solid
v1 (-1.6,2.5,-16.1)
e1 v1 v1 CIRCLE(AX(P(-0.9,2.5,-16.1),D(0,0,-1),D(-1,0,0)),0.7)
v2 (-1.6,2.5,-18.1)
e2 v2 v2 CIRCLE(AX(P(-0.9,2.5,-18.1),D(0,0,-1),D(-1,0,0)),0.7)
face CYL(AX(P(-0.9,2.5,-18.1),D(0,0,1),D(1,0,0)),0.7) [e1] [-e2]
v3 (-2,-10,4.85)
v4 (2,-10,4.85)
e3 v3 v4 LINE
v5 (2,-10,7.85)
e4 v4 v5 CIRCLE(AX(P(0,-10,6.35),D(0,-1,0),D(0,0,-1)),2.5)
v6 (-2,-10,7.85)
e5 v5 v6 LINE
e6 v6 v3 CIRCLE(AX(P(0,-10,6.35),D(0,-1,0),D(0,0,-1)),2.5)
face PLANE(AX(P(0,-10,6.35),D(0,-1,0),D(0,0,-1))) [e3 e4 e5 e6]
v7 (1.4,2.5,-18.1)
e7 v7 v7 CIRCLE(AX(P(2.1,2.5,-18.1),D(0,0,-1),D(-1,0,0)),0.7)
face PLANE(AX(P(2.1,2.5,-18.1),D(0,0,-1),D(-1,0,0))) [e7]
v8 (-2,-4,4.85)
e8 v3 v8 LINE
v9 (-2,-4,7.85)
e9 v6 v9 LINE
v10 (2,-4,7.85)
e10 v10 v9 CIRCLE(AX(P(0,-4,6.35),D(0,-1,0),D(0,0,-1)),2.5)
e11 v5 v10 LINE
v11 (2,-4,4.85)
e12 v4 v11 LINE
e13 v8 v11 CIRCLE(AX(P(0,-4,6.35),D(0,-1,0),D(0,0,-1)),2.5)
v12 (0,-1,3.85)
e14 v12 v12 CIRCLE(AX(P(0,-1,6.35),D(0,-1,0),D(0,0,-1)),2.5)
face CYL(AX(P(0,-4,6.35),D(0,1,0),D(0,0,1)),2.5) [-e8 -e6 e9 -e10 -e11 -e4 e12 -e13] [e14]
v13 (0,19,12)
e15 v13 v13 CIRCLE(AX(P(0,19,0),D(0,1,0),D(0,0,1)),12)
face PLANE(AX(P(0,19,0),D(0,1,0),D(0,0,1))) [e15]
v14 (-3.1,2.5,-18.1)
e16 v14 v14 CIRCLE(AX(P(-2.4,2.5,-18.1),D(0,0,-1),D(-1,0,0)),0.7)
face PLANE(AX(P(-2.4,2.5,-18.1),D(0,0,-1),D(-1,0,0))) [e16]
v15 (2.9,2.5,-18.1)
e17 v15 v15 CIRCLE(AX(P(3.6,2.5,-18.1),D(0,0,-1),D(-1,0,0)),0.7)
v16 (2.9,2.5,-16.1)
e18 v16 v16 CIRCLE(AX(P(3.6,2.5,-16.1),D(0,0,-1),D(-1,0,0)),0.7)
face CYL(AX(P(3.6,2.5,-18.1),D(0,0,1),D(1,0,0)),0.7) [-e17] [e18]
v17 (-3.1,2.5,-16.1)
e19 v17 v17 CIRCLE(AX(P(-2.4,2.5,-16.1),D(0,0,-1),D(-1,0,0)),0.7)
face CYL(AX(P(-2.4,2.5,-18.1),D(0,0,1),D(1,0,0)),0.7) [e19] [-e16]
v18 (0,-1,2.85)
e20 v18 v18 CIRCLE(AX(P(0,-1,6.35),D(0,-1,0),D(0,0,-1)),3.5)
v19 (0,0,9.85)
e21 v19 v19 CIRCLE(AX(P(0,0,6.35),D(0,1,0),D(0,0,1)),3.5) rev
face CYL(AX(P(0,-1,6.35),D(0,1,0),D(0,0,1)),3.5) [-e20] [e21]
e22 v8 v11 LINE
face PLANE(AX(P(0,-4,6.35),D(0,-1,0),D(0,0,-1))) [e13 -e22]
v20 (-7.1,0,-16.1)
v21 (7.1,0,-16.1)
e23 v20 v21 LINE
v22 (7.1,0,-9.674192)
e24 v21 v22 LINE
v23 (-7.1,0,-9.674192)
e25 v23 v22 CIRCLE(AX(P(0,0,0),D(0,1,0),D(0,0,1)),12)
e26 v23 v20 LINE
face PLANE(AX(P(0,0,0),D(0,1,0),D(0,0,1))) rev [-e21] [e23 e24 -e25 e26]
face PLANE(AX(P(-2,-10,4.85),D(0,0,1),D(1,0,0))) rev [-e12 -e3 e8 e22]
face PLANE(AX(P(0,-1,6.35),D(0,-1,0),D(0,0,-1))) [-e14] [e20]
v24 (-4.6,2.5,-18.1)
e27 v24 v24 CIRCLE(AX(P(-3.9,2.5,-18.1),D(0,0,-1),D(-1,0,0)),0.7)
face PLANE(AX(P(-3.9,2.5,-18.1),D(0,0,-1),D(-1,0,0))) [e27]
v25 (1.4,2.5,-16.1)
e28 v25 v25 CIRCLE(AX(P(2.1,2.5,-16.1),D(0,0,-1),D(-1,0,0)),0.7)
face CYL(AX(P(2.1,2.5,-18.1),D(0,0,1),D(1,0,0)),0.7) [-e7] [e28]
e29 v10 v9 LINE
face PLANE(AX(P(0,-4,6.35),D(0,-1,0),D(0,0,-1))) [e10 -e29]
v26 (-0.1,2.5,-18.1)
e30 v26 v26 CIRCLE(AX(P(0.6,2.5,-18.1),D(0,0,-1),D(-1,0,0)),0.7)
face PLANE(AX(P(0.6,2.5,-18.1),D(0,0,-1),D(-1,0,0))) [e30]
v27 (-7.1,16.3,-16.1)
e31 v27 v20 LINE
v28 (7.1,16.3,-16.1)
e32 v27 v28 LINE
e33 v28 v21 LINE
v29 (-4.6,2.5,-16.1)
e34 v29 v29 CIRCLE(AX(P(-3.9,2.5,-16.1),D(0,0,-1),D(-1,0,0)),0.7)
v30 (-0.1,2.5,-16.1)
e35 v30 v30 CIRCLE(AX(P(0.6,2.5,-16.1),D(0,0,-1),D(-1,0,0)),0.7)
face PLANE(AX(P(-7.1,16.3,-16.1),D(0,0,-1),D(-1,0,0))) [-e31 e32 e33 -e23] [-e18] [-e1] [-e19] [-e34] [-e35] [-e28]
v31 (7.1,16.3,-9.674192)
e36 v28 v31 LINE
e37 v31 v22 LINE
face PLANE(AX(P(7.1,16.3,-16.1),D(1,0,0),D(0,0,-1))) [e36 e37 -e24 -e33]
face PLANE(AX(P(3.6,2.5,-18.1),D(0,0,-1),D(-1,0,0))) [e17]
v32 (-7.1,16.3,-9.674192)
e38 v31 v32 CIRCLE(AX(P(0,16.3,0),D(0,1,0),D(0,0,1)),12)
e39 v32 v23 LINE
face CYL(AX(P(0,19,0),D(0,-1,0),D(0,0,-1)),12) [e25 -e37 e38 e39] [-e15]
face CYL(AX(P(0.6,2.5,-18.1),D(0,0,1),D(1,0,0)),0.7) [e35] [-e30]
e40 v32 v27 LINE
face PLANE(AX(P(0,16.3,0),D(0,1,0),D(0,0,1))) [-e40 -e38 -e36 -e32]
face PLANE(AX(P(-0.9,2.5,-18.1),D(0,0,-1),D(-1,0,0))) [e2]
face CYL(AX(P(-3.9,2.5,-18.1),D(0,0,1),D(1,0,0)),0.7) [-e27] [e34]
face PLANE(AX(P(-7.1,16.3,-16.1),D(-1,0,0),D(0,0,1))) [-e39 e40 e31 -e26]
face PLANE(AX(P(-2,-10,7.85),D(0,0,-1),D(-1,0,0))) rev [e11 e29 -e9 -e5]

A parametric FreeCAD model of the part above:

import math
import FreeCAD as App
import Part
import Sketcher

doc = App.newDocument("Part")
body = doc.addObject("PartDesign::Body", "Body")

# Sketch on XZ plane
sketch1 = body.newObject("Sketcher::SketchObject", "Sketch")
sketch1.AttachmentSupport = (doc.getObject("XZ_Plane"), [""])
sketch1.MapMode = "FlatFace"
sketch1.addGeometry(Part.Circle(App.Vector(0, 0, 0), App.Vector(0, 0, 1), 12), False)
sketch1.addConstraint(Sketcher.Constraint("Coincident", 0, 3, -1, 1))
sketch1.addConstraint(Sketcher.Constraint("Diameter", 0, 24.0))
pad1 = body.newObject("PartDesign::Pad", "Pad")
pad1.Profile = sketch1
pad1.Length = 19
pad1.Reversed = True

# Sketch on XZ plane
sketch2 = body.newObject("Sketcher::SketchObject", "Sketch001")
sketch2.AttachmentSupport = (doc.getObject("XZ_Plane"), [""])
sketch2.MapMode = "FlatFace"
sketch2.addGeometry(Part.LineSegment(App.Vector(-7, -10, 0), App.Vector(-7, -16, 0)), False)
sketch2.addGeometry(Part.LineSegment(App.Vector(-7, -16, 0), App.Vector(7, -16, 0)), False)
sketch2.addGeometry(Part.LineSegment(App.Vector(7, -16, 0), App.Vector(7, -10, 0)), False)
sketch2.addGeometry(Part.LineSegment(App.Vector(7, -10, 0), App.Vector(-7, -10, 0)), False)
sketch2.addConstraint(Sketcher.Constraint("Coincident", 0, 2, 1, 1))
sketch2.addConstraint(Sketcher.Constraint("Coincident", 1, 2, 2, 1))
sketch2.addConstraint(Sketcher.Constraint("Coincident", 2, 2, 3, 1))
sketch2.addConstraint(Sketcher.Constraint("Coincident", 3, 2, 0, 1))
sketch2.addConstraint(Sketcher.Constraint("Vertical", 0))
sketch2.addConstraint(Sketcher.Constraint("Horizontal", 1))
sketch2.addConstraint(Sketcher.Constraint("Vertical", 2))
sketch2.addConstraint(Sketcher.Constraint("Horizontal", 3))
sketch2.addConstraint(Sketcher.Constraint("DistanceX", 1, 1, 1, 2, 14.2))
sketch2.addConstraint(Sketcher.Constraint("DistanceX", 0, 2, -1, 1, 7.1))
sketch2.addConstraint(Sketcher.Constraint("DistanceY", 0, 2, -1, 1, 16.1))
sketch2.addConstraint(Sketcher.Constraint("DistanceY", 0, 2, 0, 1, 6.425808))
pad2 = body.newObject("PartDesign::Pad", "Pad001")
pad2.Profile = sketch2
pad2.Length = 16.3
pad2.Reversed = True

# Sketch on XZ plane
sketch3 = body.newObject("Sketcher::SketchObject", "Sketch002")
sketch3.AttachmentSupport = (doc.getObject("XZ_Plane"), [""])
sketch3.MapMode = "FlatFace"
sketch3.addGeometry(Part.Circle(App.Vector(0, 6.3, 0), App.Vector(0, 0, 1), 3.5), False)
sketch3.addConstraint(Sketcher.Constraint("PointOnObject", 0, 3, -2))
sketch3.addConstraint(Sketcher.Constraint("Diameter", 0, 7.0))
sketch3.addConstraint(Sketcher.Constraint("DistanceY", -1, 1, 0, 3, 6.35))
pad3 = body.newObject("PartDesign::Pad", "Pad002")
pad3.Profile = sketch3
pad3.Length = 1

# Sketch on XZ plane
sketch4 = body.newObject("Sketcher::SketchObject", "Sketch003")
sketch4.AttachmentSupport = (doc.getObject("XZ_Plane"), [""])
sketch4.MapMode = "FlatFace"
sketch4.AttachmentOffset = App.Placement(App.Vector(0, 0, 1), App.Rotation())
sketch4.addGeometry(Part.Circle(App.Vector(0, 6.3, 0), App.Vector(0, 0, 1), 2.5), False)
sketch4.addConstraint(Sketcher.Constraint("PointOnObject", 0, 3, -2))
sketch4.addConstraint(Sketcher.Constraint("Diameter", 0, 5.0))
sketch4.addConstraint(Sketcher.Constraint("DistanceY", -1, 1, 0, 3, 6.35))
pad4 = body.newObject("PartDesign::Pad", "Pad003")
pad4.Profile = sketch4
pad4.Length = 3

# Sketch on XZ plane
sketch5 = body.newObject("Sketcher::SketchObject", "Sketch004")
sketch5.AttachmentSupport = (doc.getObject("XZ_Plane"), [""])
sketch5.MapMode = "FlatFace"
sketch5.AttachmentOffset = App.Placement(App.Vector(0, 0, 4), App.Rotation())
sketch5.addGeometry(Part.LineSegment(App.Vector(2, 7.8, 0), App.Vector(-2, 7.8, 0)), False)
sketch5.addGeometry(Part.ArcOfCircle(Part.Circle(App.Vector(0, 6.3, 0), App.Vector(0, 0, 1), 2.5), math.radians(143), math.radians(217)), False)
sketch5.addGeometry(Part.LineSegment(App.Vector(-2, 4.8, 0), App.Vector(2, 4.8, 0)), False)
sketch5.addGeometry(Part.ArcOfCircle(Part.Circle(App.Vector(0, 6.3, 0), App.Vector(0, 0, 1), 2.5), math.radians(-37), math.radians(37)), False)
sketch5.addConstraint(Sketcher.Constraint("Coincident", 0, 2, 1, 1))
sketch5.addConstraint(Sketcher.Constraint("Coincident", 1, 2, 2, 1))
sketch5.addConstraint(Sketcher.Constraint("Coincident", 2, 2, 3, 1))
sketch5.addConstraint(Sketcher.Constraint("Coincident", 3, 2, 0, 1))
sketch5.addConstraint(Sketcher.Constraint("Horizontal", 0))
sketch5.addConstraint(Sketcher.Constraint("Horizontal", 2))
sketch5.addConstraint(Sketcher.Constraint("Coincident", 3, 3, 1, 3))
sketch5.addConstraint(Sketcher.Constraint("Equal", 1, 3))
sketch5.addConstraint(Sketcher.Constraint("PointOnObject", 1, 3, -2))
sketch5.addConstraint(Sketcher.Constraint("Vertical", 0, 2, 1, 2))
sketch5.addConstraint(Sketcher.Constraint("Radius", 1, 2.5))
sketch5.addConstraint(Sketcher.Constraint("DistanceX", 0, 2, 0, 1, 4.0))
sketch5.addConstraint(Sketcher.Constraint("DistanceY", -1, 1, 1, 3, 6.35))
pad5 = body.newObject("PartDesign::Pad", "Pad004")
pad5.Profile = sketch5
pad5.Length = 6

# Sketch on XY plane
sketch6 = body.newObject("Sketcher::SketchObject", "Sketch005")
sketch6.AttachmentSupport = (doc.getObject("XY_Plane"), [""])
sketch6.MapMode = "FlatFace"
sketch6.AttachmentOffset = App.Placement(App.Vector(0, 0, -16.1), App.Rotation())
sketch6.addGeometry(Part.Circle(App.Vector(3.6, 2.5, 0), App.Vector(0, 0, 1), 0.7), False)
sketch6.addGeometry(Part.Circle(App.Vector(2.1, 2.5, 0), App.Vector(0, 0, 1), 0.7), False)
sketch6.addGeometry(Part.Circle(App.Vector(0.6, 2.5, 0), App.Vector(0, 0, 1), 0.7), False)
sketch6.addGeometry(Part.Circle(App.Vector(-0.9, 2.5, 0), App.Vector(0, 0, 1), 0.7), False)
sketch6.addGeometry(Part.Circle(App.Vector(-2.4, 2.5, 0), App.Vector(0, 0, 1), 0.7), False)
sketch6.addGeometry(Part.Circle(App.Vector(-3.9, 2.5, 0), App.Vector(0, 0, 1), 0.7), False)
sketch6.addConstraint(Sketcher.Constraint("Equal", 0, 1))
sketch6.addConstraint(Sketcher.Constraint("Equal", 1, 2))
sketch6.addConstraint(Sketcher.Constraint("Equal", 2, 3))
sketch6.addConstraint(Sketcher.Constraint("Equal", 3, 4))
sketch6.addConstraint(Sketcher.Constraint("Equal", 4, 5))
sketch6.addConstraint(Sketcher.Constraint("Horizontal", 0, 3, 1, 3))
sketch6.addConstraint(Sketcher.Constraint("Horizontal", 1, 3, 2, 3))
sketch6.addConstraint(Sketcher.Constraint("Horizontal", 2, 3, 3, 3))
sketch6.addConstraint(Sketcher.Constraint("Horizontal", 3, 3, 4, 3))
sketch6.addConstraint(Sketcher.Constraint("Horizontal", 4, 3, 5, 3))
sketch6.addConstraint(Sketcher.Constraint("Diameter", 0, 1.4))
sketch6.addConstraint(Sketcher.Constraint("DistanceX", 2, 3, 0, 3, 3.0))
sketch6.addConstraint(Sketcher.Constraint("DistanceX", 3, 3, 1, 3, 3.0))
sketch6.addConstraint(Sketcher.Constraint("DistanceX", 4, 3, 2, 3, 3.0))
sketch6.addConstraint(Sketcher.Constraint("DistanceX", 5, 3, 3, 3, 3.0))
sketch6.addConstraint(Sketcher.Constraint("DistanceX", -1, 1, 0, 3, 3.6))
sketch6.addConstraint(Sketcher.Constraint("DistanceY", -1, 1, 0, 3, 2.5))
sketch6.addConstraint(Sketcher.Constraint("DistanceX", -1, 1, 1, 3, 2.1))
pad6 = body.newObject("PartDesign::Pad", "Pad005")
pad6.Profile = sketch6
pad6.Length = 2
pad6.Reversed = True

doc.recompute()
